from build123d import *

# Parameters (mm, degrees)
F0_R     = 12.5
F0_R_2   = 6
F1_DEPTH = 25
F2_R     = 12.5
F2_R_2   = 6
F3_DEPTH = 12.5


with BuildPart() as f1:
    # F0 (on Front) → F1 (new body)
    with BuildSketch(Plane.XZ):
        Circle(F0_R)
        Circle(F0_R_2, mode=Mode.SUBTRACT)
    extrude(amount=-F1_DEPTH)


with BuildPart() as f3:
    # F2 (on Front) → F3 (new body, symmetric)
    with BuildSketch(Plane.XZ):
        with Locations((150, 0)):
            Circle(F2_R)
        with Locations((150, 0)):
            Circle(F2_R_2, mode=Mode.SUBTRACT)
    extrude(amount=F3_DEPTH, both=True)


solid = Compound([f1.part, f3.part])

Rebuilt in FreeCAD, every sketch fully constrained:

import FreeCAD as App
import Part
import Sketcher

doc = App.newDocument("Part")
body = doc.addObject("PartDesign::Body", "Body")

# Sketch on XZ plane
sketch1 = body.newObject("Sketcher::SketchObject", "Sketch")
sketch1.AttachmentSupport = (doc.getObject("XZ_Plane"), [""])
sketch1.MapMode = "FlatFace"
sketch1.addGeometry([
    Part.Circle(App.Vector(0, 0, 0), App.Vector(0, 0, 1), 12),
    Part.Circle(App.Vector(0, 0, 0), App.Vector(0, 0, 1), 6),
], False)
sketch1.addConstraint([
    Sketcher.Constraint("Coincident", 0, 3, -1, 1),
    Sketcher.Constraint("Coincident", 1, 3, -1, 1),
    Sketcher.Constraint("Diameter", 0, 25.0),
    Sketcher.Constraint("Diameter", 1, 12.0),
])
pad1 = body.newObject("PartDesign::Pad", "Pad")
pad1.Profile = sketch1
pad1.Length = 25
pad1.Reversed = True
body2 = doc.addObject("PartDesign::Body", "Body001")

# Sketch on XZ plane
sketch2 = body2.newObject("Sketcher::SketchObject", "Sketch001")
sketch2.AttachmentSupport = (doc.getObject("XZ_Plane001"), [""])
sketch2.MapMode = "FlatFace"
sketch2.addGeometry([
    Part.Circle(App.Vector(150, 0, 0), App.Vector(0, 0, 1), 12),
    Part.Circle(App.Vector(150, 0, 0), App.Vector(0, 0, 1), 6),
], False)
sketch2.addConstraint([
    Sketcher.Constraint("Coincident", 1, 3, 0, 3),
    Sketcher.Constraint("PointOnObject", 0, 3, -1),
    Sketcher.Constraint("Diameter", 0, 25.0),
    Sketcher.Constraint("Diameter", 1, 12.0),
    Sketcher.Constraint("DistanceX", -1, 1, 0, 3, 150.0),
])
pad2 = body2.newObject("PartDesign::Pad", "Pad001")
pad2.Profile = sketch2
pad2.Length = 25
pad2.Midplane = True

doc.recompute()
